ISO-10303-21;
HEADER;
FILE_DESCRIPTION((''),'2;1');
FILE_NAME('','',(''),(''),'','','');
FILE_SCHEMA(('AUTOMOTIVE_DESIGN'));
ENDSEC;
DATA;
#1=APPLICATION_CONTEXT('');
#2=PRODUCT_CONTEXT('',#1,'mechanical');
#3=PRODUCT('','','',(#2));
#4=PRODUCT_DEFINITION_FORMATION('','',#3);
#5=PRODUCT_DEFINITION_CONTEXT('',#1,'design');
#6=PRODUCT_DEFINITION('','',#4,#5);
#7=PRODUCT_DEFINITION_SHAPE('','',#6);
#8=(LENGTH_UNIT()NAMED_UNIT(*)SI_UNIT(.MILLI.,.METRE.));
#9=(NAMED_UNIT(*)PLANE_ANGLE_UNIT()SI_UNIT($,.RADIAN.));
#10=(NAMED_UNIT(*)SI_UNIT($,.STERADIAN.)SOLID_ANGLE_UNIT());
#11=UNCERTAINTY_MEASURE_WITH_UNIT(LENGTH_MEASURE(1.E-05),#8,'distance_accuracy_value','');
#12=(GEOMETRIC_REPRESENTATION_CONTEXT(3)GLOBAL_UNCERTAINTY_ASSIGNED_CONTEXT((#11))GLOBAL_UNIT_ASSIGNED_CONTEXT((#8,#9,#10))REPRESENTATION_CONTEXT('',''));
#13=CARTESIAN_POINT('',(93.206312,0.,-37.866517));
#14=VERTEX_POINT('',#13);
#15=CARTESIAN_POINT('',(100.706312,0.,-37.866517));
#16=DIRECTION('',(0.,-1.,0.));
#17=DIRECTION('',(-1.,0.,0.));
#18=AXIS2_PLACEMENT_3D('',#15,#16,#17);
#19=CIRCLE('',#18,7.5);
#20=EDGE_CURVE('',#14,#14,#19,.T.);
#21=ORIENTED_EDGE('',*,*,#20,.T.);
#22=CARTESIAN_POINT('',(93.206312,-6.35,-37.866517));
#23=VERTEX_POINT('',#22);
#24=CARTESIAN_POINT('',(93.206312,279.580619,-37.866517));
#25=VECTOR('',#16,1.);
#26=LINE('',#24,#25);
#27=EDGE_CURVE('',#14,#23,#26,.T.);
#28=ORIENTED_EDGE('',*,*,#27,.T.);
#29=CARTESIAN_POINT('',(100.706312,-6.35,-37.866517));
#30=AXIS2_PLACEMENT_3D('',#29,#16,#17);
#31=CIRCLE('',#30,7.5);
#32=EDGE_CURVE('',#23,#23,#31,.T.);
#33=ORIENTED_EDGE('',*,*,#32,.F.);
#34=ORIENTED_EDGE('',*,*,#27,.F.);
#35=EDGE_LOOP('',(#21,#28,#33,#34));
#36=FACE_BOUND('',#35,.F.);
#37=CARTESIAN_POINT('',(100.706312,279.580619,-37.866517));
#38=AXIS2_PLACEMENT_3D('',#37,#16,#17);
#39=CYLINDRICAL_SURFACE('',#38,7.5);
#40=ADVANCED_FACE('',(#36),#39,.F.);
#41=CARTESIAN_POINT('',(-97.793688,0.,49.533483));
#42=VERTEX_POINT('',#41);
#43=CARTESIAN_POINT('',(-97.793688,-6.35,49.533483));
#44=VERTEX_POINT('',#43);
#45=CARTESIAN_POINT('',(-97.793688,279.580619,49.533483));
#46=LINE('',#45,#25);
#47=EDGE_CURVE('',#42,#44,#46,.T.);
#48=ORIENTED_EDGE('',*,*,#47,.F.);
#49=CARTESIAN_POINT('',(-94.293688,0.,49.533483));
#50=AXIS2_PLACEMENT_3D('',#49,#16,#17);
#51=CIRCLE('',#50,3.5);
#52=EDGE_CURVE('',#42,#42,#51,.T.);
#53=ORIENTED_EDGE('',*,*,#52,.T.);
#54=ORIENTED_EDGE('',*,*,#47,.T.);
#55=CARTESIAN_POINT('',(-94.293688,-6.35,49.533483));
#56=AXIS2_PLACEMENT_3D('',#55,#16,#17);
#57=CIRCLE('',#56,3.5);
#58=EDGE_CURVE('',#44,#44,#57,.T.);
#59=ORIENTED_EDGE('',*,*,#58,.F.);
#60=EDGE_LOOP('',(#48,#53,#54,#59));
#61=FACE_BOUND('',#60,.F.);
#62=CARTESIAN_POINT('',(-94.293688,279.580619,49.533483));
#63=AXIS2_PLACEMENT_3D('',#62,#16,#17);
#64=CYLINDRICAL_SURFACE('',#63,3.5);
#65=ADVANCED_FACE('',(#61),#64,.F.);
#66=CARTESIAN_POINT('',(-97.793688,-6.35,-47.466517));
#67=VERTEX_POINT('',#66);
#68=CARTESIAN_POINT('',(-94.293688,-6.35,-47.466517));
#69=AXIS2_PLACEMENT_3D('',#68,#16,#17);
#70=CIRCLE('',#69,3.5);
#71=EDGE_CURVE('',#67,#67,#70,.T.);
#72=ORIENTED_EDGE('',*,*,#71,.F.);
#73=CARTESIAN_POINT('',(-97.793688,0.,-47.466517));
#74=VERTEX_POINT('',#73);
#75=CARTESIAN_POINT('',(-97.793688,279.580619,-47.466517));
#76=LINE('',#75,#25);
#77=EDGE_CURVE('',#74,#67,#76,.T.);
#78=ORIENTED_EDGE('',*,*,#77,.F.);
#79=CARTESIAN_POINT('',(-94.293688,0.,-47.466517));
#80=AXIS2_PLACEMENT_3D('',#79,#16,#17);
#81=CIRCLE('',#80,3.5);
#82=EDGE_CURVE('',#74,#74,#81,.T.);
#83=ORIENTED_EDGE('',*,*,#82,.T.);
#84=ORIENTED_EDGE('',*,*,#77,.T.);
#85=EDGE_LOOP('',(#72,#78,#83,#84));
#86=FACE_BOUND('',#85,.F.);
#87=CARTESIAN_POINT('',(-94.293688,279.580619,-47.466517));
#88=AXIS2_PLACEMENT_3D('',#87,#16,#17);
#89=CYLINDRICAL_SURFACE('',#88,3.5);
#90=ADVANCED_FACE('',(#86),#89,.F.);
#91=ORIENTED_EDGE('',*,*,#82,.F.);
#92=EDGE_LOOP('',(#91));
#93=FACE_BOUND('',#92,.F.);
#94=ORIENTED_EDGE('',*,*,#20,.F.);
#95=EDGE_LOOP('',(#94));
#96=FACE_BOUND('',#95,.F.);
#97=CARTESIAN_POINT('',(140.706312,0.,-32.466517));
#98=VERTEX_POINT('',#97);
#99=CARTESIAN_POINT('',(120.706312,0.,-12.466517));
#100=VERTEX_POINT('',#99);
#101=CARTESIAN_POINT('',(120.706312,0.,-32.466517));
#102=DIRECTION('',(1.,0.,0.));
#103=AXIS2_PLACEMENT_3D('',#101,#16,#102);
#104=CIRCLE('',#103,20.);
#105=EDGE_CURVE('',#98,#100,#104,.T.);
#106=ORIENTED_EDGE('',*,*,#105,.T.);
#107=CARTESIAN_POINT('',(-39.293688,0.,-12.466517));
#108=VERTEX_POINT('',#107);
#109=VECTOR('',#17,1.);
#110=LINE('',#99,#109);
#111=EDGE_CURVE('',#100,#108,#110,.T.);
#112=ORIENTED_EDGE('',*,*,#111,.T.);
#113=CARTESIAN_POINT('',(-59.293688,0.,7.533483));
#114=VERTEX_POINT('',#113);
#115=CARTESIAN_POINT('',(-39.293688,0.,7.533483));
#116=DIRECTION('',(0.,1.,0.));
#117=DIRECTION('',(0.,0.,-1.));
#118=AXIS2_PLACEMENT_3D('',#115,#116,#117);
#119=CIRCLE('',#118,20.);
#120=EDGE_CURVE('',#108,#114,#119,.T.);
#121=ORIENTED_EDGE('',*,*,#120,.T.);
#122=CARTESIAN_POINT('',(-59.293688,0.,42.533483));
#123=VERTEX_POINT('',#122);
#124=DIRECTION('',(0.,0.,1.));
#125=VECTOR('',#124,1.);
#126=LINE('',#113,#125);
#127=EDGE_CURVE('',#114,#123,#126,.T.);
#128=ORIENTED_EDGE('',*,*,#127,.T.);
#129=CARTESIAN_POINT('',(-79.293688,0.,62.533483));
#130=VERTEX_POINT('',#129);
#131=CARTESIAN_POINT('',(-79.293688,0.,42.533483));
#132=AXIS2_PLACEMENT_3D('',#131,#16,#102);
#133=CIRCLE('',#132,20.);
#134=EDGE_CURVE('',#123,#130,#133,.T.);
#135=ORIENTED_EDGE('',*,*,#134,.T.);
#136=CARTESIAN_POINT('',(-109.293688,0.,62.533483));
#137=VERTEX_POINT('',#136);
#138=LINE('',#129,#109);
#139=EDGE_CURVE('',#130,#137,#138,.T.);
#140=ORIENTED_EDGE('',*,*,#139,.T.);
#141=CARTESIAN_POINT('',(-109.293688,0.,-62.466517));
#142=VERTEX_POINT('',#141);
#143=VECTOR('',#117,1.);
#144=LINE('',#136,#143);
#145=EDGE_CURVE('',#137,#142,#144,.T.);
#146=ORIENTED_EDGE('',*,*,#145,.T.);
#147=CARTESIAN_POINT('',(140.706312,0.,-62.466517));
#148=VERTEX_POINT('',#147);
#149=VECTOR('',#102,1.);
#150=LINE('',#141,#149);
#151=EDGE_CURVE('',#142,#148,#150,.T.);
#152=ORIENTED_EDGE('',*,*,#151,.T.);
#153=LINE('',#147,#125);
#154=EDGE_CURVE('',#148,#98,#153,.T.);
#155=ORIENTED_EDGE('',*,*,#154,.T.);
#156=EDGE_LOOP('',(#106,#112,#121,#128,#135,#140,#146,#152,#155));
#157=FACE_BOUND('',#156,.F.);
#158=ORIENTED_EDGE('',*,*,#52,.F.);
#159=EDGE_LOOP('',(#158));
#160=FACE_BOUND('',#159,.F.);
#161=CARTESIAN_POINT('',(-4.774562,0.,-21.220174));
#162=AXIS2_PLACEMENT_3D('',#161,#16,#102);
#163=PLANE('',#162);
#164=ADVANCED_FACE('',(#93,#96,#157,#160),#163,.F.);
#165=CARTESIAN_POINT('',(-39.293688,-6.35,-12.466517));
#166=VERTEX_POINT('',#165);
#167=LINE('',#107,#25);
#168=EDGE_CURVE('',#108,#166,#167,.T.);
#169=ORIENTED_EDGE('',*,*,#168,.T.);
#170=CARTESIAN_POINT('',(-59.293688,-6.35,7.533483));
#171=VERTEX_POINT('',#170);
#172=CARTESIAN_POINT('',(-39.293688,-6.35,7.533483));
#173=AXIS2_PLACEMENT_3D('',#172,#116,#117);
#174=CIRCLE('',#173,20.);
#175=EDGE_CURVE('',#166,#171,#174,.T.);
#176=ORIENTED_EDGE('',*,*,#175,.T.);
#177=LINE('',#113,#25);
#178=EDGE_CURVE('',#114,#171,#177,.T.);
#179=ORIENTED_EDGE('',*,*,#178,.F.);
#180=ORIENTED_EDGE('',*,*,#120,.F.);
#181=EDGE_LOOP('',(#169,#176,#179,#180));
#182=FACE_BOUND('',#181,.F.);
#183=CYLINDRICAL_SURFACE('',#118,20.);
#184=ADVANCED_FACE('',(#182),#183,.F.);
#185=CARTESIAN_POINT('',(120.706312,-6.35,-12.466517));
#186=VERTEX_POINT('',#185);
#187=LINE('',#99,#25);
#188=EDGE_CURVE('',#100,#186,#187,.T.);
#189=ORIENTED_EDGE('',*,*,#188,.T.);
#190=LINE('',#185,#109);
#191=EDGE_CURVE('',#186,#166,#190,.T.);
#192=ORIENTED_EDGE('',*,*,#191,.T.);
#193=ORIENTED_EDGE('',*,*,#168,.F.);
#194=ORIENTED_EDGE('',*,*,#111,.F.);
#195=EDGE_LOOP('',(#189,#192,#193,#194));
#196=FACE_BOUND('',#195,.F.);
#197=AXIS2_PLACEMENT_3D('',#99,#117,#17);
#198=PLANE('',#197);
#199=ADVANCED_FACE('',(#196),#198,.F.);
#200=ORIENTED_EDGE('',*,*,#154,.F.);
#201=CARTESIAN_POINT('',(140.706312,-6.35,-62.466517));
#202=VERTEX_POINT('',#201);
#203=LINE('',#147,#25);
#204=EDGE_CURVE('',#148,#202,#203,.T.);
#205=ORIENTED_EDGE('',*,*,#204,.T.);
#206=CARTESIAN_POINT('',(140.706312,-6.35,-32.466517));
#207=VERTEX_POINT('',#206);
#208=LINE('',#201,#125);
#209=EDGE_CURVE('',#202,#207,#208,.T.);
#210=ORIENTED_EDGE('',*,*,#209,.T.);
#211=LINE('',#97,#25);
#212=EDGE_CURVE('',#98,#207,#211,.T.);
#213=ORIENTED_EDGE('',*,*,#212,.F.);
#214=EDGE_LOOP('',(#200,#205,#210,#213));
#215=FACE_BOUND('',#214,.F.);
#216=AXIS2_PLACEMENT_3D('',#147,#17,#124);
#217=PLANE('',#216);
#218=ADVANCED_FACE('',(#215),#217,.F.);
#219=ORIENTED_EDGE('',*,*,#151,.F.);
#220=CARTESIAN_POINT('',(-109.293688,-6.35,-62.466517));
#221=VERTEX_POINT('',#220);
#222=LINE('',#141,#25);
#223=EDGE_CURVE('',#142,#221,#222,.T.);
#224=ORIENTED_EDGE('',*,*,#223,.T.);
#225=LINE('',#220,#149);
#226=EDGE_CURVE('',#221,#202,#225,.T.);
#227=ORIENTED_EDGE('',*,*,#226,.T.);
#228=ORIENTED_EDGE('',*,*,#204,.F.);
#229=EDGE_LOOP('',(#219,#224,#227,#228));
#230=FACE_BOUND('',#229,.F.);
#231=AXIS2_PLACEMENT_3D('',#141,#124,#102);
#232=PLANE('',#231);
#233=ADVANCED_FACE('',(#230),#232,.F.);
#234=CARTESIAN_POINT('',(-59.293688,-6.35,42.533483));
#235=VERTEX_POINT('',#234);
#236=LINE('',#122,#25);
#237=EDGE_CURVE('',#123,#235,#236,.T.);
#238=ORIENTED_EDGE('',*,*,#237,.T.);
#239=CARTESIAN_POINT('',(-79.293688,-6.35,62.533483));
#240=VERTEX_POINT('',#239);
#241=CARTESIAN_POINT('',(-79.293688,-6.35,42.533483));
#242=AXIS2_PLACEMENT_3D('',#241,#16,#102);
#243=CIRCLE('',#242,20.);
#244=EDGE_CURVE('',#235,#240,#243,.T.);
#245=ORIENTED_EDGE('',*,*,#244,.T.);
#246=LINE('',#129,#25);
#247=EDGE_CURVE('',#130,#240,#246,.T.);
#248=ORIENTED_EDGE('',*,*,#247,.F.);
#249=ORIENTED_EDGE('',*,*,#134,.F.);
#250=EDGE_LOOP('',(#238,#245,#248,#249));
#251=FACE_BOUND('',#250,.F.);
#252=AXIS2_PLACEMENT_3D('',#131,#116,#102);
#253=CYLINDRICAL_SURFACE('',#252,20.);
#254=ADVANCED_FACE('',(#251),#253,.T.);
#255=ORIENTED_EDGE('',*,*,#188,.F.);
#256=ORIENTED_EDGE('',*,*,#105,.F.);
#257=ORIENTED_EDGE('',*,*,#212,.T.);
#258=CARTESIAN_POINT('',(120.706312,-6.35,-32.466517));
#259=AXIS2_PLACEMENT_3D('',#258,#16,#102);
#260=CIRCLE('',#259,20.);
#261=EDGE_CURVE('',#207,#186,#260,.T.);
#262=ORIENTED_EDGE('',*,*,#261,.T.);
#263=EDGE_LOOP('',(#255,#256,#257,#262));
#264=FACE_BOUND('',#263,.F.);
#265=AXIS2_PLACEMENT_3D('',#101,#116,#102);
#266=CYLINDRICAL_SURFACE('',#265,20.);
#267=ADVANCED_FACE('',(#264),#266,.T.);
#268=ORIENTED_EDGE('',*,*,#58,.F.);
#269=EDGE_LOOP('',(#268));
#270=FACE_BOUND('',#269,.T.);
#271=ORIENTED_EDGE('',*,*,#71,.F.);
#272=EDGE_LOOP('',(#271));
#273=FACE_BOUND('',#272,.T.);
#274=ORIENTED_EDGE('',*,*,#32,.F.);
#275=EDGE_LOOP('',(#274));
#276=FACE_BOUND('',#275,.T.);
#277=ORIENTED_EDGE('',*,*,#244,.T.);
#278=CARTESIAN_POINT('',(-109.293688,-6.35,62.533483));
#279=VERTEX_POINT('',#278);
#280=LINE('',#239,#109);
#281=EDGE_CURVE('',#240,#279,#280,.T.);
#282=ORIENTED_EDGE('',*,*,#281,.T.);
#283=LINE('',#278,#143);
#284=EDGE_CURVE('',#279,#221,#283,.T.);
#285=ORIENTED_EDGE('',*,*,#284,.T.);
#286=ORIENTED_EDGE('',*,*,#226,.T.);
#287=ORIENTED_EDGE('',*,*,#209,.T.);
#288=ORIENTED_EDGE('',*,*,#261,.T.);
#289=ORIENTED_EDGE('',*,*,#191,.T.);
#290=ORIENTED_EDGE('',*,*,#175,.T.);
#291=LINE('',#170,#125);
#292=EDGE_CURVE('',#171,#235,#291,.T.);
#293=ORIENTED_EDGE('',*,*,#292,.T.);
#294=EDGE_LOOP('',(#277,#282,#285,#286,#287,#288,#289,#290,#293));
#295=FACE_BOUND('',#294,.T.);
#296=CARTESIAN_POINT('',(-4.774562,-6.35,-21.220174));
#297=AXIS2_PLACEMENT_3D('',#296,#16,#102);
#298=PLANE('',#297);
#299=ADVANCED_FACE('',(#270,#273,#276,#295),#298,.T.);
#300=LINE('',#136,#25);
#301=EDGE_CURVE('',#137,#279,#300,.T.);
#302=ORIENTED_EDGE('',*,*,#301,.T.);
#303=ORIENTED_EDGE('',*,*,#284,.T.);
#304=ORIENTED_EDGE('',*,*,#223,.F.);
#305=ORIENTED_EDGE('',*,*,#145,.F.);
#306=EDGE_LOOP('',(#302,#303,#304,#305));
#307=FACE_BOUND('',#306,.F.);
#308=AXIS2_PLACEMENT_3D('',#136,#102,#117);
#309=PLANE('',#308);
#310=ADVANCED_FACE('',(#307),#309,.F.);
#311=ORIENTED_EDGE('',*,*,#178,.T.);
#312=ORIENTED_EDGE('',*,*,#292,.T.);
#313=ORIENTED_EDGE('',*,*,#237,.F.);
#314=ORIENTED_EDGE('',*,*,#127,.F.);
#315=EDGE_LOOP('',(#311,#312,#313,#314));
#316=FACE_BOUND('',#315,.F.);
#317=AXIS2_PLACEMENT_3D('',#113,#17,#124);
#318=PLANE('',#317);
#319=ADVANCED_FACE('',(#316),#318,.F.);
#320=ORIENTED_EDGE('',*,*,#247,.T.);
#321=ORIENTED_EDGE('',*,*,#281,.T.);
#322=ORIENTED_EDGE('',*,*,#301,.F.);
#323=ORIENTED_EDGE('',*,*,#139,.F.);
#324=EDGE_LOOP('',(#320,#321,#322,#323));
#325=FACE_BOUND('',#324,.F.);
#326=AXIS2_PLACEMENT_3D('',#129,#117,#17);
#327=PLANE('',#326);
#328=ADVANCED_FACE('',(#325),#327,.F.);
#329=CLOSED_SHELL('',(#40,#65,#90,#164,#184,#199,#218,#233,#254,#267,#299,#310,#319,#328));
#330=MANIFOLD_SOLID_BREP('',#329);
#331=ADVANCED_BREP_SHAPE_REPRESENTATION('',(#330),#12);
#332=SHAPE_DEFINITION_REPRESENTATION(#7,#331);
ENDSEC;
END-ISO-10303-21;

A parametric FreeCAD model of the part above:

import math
import FreeCAD as App
import Part
import Sketcher

V = App.Vector

doc = App.newDocument("Part")
body = doc.addObject("PartDesign::Body", "Body")

# Sketch on XZ plane
sketch1 = body.newObject("Sketcher::SketchObject", "Sketch")
sketch1.AttachmentSupport = (doc.getObject("XZ_Plane"), [""])
sketch1.MapMode = "FlatFace"
sketch1.addGeometry([
    Part.LineSegment(V(-79, 63, 0), V(-109, 63, 0)),  # 0
    Part.LineSegment(V(-109, 63, 0), V(-109, -62, 0)),  # 1
    Part.LineSegment(V(-109, -62, 0), V(141, -62, 0)),  # 2
    Part.LineSegment(V(141, -62, 0), V(141, -32, 0)),  # 3
    Part.ArcOfCircle(Part.Circle(V(121, -32, 0), V(0, 0, 1), 20), math.radians(0), math.radians(90)),  # 4
    Part.LineSegment(V(121, -12, 0), V(-39, -12, 0)),  # 5
    Part.ArcOfCircle(Part.Circle(V(-39, 8, 0), V(0, 0, 1), 20), math.radians(180), math.radians(270)),  # 6
    Part.LineSegment(V(-59, 8, 0), V(-59, 43, 0)),  # 7
    Part.ArcOfCircle(Part.Circle(V(-79, 43, 0), V(0, 0, 1), 20), math.radians(0), math.radians(90)),  # 8
], False)
sketch1.addConstraint([
    Sketcher.Constraint("Coincident", 0, 2, 1, 1),
    Sketcher.Constraint("Coincident", 1, 2, 2, 1),
    Sketcher.Constraint("Coincident", 2, 2, 3, 1),
    Sketcher.Constraint("Tangent", 3, 2, 4, 1),
    Sketcher.Constraint("Tangent", 4, 2, 5, 1),
    Sketcher.Constraint("Tangent", 5, 2, 6, 2),
    Sketcher.Constraint("Tangent", 6, 1, 7, 1),
    Sketcher.Constraint("Tangent", 7, 2, 8, 1),
    Sketcher.Constraint("Tangent", 8, 2, 0, 1),
    Sketcher.Constraint("Horizontal", 0),
    Sketcher.Constraint("Vertical", 1),
    Sketcher.Constraint("Horizontal", 2),
    Sketcher.Constraint("Vertical", 3),
    Sketcher.Constraint("Horizontal", 5),
    Sketcher.Constraint("Vertical", 7),
    Sketcher.Constraint("Equal", 4, 6),
    Sketcher.Constraint("Equal", 6, 8),
    Sketcher.Constraint("Equal", 0, 3),
    Sketcher.Constraint("Radius", 4, 20.0),
    Sketcher.Constraint("DistanceX", 0, 2, 0, 1, 30.0),
    Sketcher.Constraint("DistanceX", 2, 1, 2, 2, 250.0),
    Sketcher.Constraint("DistanceY", 1, 2, 1, 1, 125.0),
    Sketcher.Constraint("DistanceX", -1, 1, 4, 3, 120.706312),
    Sketcher.Constraint("DistanceY", 4, 3, -1, 1, 32.466517),
])
pad1 = body.newObject("PartDesign::Pad", "Pad")
pad1.Profile = sketch1
pad1.Length = 6.35

# Sketch on XZ plane
sketch2 = body.newObject("Sketcher::SketchObject", "Sketch001")
sketch2.AttachmentSupport = (doc.getObject("XZ_Plane"), [""])
sketch2.MapMode = "FlatFace"
sketch2.addGeometry([
    Part.Circle(V(-94.3, 49.5, 0), V(0, 0, 1), 3.5),
    Part.Circle(V(-94.3, -47.5, 0), V(0, 0, 1), 3.5),
], False)
sketch2.addConstraint([
    Sketcher.Constraint("Equal", 0, 1),
    Sketcher.Constraint("Vertical", 0, 3, 1, 3),
    Sketcher.Constraint("Diameter", 0, 7.0),
    Sketcher.Constraint("DistanceY", 1, 3, 0, 3, 97.0),
    Sketcher.Constraint("DistanceX", 0, 3, -1, 1, 94.293688),
    Sketcher.Constraint("DistanceY", -1, 1, 0, 3, 49.533483),
])
doc.recompute()
hole = body.newObject("PartDesign::Hole", "Hole")
hole.Profile = sketch2
hole.ThreadType = "None"
hole.Diameter = 7
hole.DepthType = "ThroughAll"
hole.Reversed = True

# Sketch on XZ plane
sketch3 = body.newObject("Sketcher::SketchObject", "Sketch002")
sketch3.AttachmentSupport = (doc.getObject("XZ_Plane"), [""])
sketch3.MapMode = "FlatFace"
sketch3.addGeometry(Part.Circle(V(101, -38, 0), V(0, 0, 1), 8), False)
sketch3.addConstraint([
    Sketcher.Constraint("Diameter", 0, 15.0),
    Sketcher.Constraint("DistanceX", -1, 1, 0, 3, 100.706312),
    Sketcher.Constraint("DistanceY", 0, 3, -1, 1, 37.866517),
])
doc.recompute()
hole2 = body.newObject("PartDesign::Hole", "Hole001")
hole2.Profile = sketch3
hole2.ThreadType = "None"
hole2.Diameter = 15
hole2.DepthType = "ThroughAll"
hole2.Reversed = True

doc.recompute()
